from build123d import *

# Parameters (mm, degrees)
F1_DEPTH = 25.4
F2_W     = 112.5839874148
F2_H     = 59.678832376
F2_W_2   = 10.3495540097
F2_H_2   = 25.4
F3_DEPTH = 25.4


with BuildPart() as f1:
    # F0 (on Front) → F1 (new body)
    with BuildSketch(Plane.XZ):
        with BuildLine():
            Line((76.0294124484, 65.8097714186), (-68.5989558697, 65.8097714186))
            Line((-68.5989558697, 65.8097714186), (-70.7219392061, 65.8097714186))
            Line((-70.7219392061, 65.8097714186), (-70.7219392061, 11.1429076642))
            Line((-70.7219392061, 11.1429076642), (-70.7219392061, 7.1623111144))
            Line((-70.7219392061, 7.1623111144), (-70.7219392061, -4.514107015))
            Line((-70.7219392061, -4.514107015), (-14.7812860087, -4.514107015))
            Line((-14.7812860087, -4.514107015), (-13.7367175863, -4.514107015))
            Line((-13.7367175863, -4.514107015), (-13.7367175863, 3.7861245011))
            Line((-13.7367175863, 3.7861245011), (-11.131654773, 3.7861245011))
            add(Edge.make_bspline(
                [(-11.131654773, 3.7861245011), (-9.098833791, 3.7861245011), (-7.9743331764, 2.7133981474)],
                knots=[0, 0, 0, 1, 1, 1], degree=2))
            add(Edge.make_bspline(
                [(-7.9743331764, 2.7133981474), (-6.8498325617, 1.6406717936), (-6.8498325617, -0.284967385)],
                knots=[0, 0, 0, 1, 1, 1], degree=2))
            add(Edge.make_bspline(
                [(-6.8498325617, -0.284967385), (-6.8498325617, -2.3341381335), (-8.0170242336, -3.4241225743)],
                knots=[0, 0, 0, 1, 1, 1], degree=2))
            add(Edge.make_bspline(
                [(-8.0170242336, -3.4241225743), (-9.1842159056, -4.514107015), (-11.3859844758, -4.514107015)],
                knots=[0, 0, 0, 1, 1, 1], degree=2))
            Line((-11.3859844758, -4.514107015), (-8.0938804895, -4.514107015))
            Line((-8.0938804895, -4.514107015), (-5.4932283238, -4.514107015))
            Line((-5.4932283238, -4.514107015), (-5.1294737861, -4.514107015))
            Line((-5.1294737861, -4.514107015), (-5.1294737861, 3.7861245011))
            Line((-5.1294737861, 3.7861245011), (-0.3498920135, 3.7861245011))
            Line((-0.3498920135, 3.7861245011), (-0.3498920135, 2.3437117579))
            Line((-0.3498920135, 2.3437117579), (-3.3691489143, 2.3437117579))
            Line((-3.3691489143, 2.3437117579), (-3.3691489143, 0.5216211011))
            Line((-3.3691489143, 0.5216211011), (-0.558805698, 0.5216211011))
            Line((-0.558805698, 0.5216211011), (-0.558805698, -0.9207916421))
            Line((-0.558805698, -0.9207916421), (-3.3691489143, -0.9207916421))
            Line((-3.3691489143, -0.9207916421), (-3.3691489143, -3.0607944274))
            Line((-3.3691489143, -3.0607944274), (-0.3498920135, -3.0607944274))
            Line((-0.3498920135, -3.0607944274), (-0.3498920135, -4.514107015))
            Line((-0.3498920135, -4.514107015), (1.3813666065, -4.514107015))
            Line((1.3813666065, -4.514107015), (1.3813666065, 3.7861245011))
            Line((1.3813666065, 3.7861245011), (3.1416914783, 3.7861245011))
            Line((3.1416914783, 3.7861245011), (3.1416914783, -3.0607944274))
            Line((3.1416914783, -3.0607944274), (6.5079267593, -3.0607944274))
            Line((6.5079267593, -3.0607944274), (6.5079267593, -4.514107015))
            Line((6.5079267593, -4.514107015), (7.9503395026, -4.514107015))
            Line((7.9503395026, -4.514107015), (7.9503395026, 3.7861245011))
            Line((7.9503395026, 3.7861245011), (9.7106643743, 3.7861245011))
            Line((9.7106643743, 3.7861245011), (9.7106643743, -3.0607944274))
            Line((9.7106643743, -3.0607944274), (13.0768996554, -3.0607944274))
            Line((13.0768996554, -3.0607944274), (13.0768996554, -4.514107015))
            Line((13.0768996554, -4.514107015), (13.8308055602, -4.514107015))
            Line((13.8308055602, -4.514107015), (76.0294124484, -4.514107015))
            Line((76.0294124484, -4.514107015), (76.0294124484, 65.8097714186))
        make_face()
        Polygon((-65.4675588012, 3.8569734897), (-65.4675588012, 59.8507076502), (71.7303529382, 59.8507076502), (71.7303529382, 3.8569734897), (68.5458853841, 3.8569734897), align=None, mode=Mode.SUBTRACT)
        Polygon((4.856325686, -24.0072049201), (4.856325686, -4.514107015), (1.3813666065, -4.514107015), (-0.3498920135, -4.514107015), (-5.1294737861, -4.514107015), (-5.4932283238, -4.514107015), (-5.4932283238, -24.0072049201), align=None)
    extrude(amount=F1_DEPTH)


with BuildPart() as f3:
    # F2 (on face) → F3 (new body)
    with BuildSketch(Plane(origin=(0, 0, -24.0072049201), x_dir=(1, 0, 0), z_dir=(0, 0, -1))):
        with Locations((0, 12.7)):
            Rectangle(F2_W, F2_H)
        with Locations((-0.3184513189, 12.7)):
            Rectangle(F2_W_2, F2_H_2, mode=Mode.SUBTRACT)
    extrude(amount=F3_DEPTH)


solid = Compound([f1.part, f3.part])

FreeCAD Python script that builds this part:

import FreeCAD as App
import Part
import Sketcher
Q = App.Units.Quantity

doc = App.newDocument("Part")
params = doc.addObject("Spreadsheet::Sheet", "Params")
for row, (alias, value) in enumerate([
    ("pad1_length", "1 in"),
    ("sketch2_height", "1 in"),
    ("pad2_length", "1 in"),
], start=1):
    params.set(f"A{row}", alias)
    params.set(f"B{row}", "=" + value)
    params.setAlias(f"B{row}", alias)

body = doc.addObject("PartDesign::Body", "Body")

# Sketch on XZ plane
sketch1 = doc.addObject("Sketcher::SketchObject", "Sketch")
body.addObject(sketch1)
sketch1.AttachmentSupport = (doc.XZ_Plane, [""])
sketch1.MapMode = "FlatFace"
sketch1.addGeometry([
    Part.LineSegment(App.Vector(76.029412, 65.809771, 0), App.Vector(-70.721939, 65.809771, 0)),  # 0
    Part.LineSegment(App.Vector(-70.721939, 65.809771, 0), App.Vector(-70.721939, -4.514107, 0)),  # 1
    Part.LineSegment(App.Vector(-70.721939, -4.514107, 0), App.Vector(-13.736718, -4.514107, 0)),  # 2
    Part.LineSegment(App.Vector(-13.736718, -4.514107, 0), App.Vector(-13.736718, 3.786125, 0)),  # 3
    Part.LineSegment(App.Vector(-13.736718, 3.786125, 0), App.Vector(-11.131655, 3.786125, 0)),  # 4
    Part.BSplineCurve([App.Vector(-11.131655, 3.786125, 0), App.Vector(-9.098834, 3.786125, 0), App.Vector(-7.974333, 2.713398, 0)], [3, 3], [0, 1], False, 2, [1, 1, 1], False),  # 5
    Part.BSplineCurve([App.Vector(-7.974333, 2.713398, 0), App.Vector(-6.849833, 1.640672, 0), App.Vector(-6.849833, -2.334138, 0), App.Vector(-8.017024, -3.424123, 0)], [3, 1, 3], [0, 1, 2.064150943], False, 2, [1, 1, 1, 1], False),  # 6
    Part.BSplineCurve([App.Vector(-8.017024, -3.424123, 0), App.Vector(-9.184216, -4.514107, 0), App.Vector(-11.385984, -4.514107, 0)], [3, 3], [0, 1], False, 2, [1, 1, 1], False),  # 7
    Part.LineSegment(App.Vector(-11.385984, -4.514107, 0), App.Vector(-5.493228, -4.514107, 0)),  # 8
    Part.LineSegment(App.Vector(-5.493228, -4.514107, 0), App.Vector(-5.493228, -24.007205, 0)),  # 9
    Part.LineSegment(App.Vector(-5.493228, -24.007205, 0), App.Vector(4.856326, -24.007205, 0)),  # 10
    Part.LineSegment(App.Vector(4.856326, -24.007205, 0), App.Vector(4.856326, -4.514107, 0)),  # 11
    Part.LineSegment(App.Vector(4.856326, -4.514107, 0), App.Vector(1.381367, -4.514107, 0)),  # 12
    Part.LineSegment(App.Vector(1.381367, -4.514107, 0), App.Vector(1.381367, 3.786125, 0)),  # 13
    Part.LineSegment(App.Vector(1.381367, 3.786125, 0), App.Vector(3.141691, 3.786125, 0)),  # 14
    Part.LineSegment(App.Vector(3.141691, 3.786125, 0), App.Vector(3.141691, -3.060794, 0)),  # 15
    Part.LineSegment(App.Vector(3.141691, -3.060794, 0), App.Vector(6.507927, -3.060794, 0)),  # 16
    Part.LineSegment(App.Vector(6.507927, -3.060794, 0), App.Vector(6.507927, -4.514107, 0)),  # 17
    Part.LineSegment(App.Vector(6.507927, -4.514107, 0), App.Vector(7.95034, -4.514107, 0)),  # 18
    Part.LineSegment(App.Vector(7.95034, -4.514107, 0), App.Vector(7.95034, 3.786125, 0)),  # 19
    Part.LineSegment(App.Vector(7.95034, 3.786125, 0), App.Vector(9.710664, 3.786125, 0)),  # 20
    Part.LineSegment(App.Vector(9.710664, 3.786125, 0), App.Vector(9.710664, -3.060794, 0)),  # 21
    Part.LineSegment(App.Vector(9.710664, -3.060794, 0), App.Vector(13.0769, -3.060794, 0)),  # 22
    Part.LineSegment(App.Vector(13.0769, -3.060794, 0), App.Vector(13.0769, -4.514107, 0)),  # 23
    Part.LineSegment(App.Vector(13.0769, -4.514107, 0), App.Vector(76.029412, -4.514107, 0)),  # 24
    Part.LineSegment(App.Vector(76.029412, -4.514107, 0), App.Vector(76.029412, 65.809771, 0)),  # 25
    Part.LineSegment(App.Vector(-5.129474, -4.514107, 0), App.Vector(-5.129474, 3.786125, 0)),  # 26
    Part.LineSegment(App.Vector(-5.129474, 3.786125, 0), App.Vector(-0.349892, 3.786125, 0)),  # 27
    Part.LineSegment(App.Vector(-0.349892, 3.786125, 0), App.Vector(-0.349892, 2.343712, 0)),  # 28
    Part.LineSegment(App.Vector(-0.349892, 2.343712, 0), App.Vector(-3.369149, 2.343712, 0)),  # 29
    Part.LineSegment(App.Vector(-3.369149, 2.343712, 0), App.Vector(-3.369149, 0.521621, 0)),  # 30
    Part.LineSegment(App.Vector(-3.369149, 0.521621, 0), App.Vector(-0.558806, 0.521621, 0)),  # 31
    Part.LineSegment(App.Vector(-0.558806, 0.521621, 0), App.Vector(-0.558806, -0.920792, 0)),  # 32
    Part.LineSegment(App.Vector(-0.558806, -0.920792, 0), App.Vector(-3.369149, -0.920792, 0)),  # 33
    Part.LineSegment(App.Vector(-3.369149, -0.920792, 0), App.Vector(-3.369149, -3.060794, 0)),  # 34
    Part.LineSegment(App.Vector(-3.369149, -3.060794, 0), App.Vector(-0.349892, -3.060794, 0)),  # 35
    Part.LineSegment(App.Vector(-0.349892, -3.060794, 0), App.Vector(-0.349892, -4.514107, 0)),  # 36
    Part.LineSegment(App.Vector(-0.349892, -4.514107, 0), App.Vector(-5.129474, -4.514107, 0)),  # 37
    Part.LineSegment(App.Vector(71.730353, 3.856973, 0), App.Vector(-65.467559, 3.856973, 0)),  # 38
    Part.LineSegment(App.Vector(-65.467559, 3.856973, 0), App.Vector(-65.467559, 59.850708, 0)),  # 39
    Part.LineSegment(App.Vector(-65.467559, 59.850708, 0), App.Vector(71.730353, 59.850708, 0)),  # 40
    Part.LineSegment(App.Vector(71.730353, 59.850708, 0), App.Vector(71.730353, 3.856973, 0)),  # 41
], False)
sketch1.addConstraint([
    Sketcher.Constraint("Block", 5),
    Sketcher.Constraint("Block", 6),
    Sketcher.Constraint("Block", 7),
    Sketcher.Constraint("Coincident", 0, 2, 1, 1),
    Sketcher.Constraint("Coincident", 1, 2, 2, 1),
    Sketcher.Constraint("Coincident", 2, 2, 3, 1),
    Sketcher.Constraint("Coincident", 3, 2, 4, 1),
    Sketcher.Constraint("Coincident", 4, 2, 5, 1),
    Sketcher.Constraint("Coincident", 7, 2, 8, 1),
    Sketcher.Constraint("Coincident", 8, 2, 9, 1),
    Sketcher.Constraint("Coincident", 9, 2, 10, 1),
    Sketcher.Constraint("Coincident", 10, 2, 11, 1),
    Sketcher.Constraint("Coincident", 11, 2, 12, 1),
    Sketcher.Constraint("Coincident", 12, 2, 13, 1),
    Sketcher.Constraint("Coincident", 13, 2, 14, 1),
    Sketcher.Constraint("Coincident", 14, 2, 15, 1),
    Sketcher.Constraint("Coincident", 15, 2, 16, 1),
    Sketcher.Constraint("Coincident", 16, 2, 17, 1),
    Sketcher.Constraint("Coincident", 17, 2, 18, 1),
    Sketcher.Constraint("Coincident", 18, 2, 19, 1),
    Sketcher.Constraint("Coincident", 19, 2, 20, 1),
    Sketcher.Constraint("Coincident", 20, 2, 21, 1),
    Sketcher.Constraint("Coincident", 21, 2, 22, 1),
    Sketcher.Constraint("Coincident", 22, 2, 23, 1),
    Sketcher.Constraint("Coincident", 23, 2, 24, 1),
    Sketcher.Constraint("Coincident", 24, 2, 25, 1),
    Sketcher.Constraint("Coincident", 25, 2, 0, 1),
    Sketcher.Constraint("Coincident", 26, 2, 27, 1),
    Sketcher.Constraint("Coincident", 27, 2, 28, 1),
    Sketcher.Constraint("Coincident", 28, 2, 29, 1),
    Sketcher.Constraint("Coincident", 29, 2, 30, 1),
    Sketcher.Constraint("Coincident", 30, 2, 31, 1),
    Sketcher.Constraint("Coincident", 31, 2, 32, 1),
    Sketcher.Constraint("Coincident", 32, 2, 33, 1),
    Sketcher.Constraint("Coincident", 33, 2, 34, 1),
    Sketcher.Constraint("Coincident", 34, 2, 35, 1),
    Sketcher.Constraint("Coincident", 35, 2, 36, 1),
    Sketcher.Constraint("Coincident", 36, 2, 37, 1),
    Sketcher.Constraint("Coincident", 37, 2, 26, 1),
    Sketcher.Constraint("Coincident", 38, 2, 39, 1),
    Sketcher.Constraint("Coincident", 39, 2, 40, 1),
    Sketcher.Constraint("Coincident", 40, 2, 41, 1),
    Sketcher.Constraint("Coincident", 41, 2, 38, 1),
    Sketcher.Constraint("Horizontal", 0),
    Sketcher.Constraint("Vertical", 1),
    Sketcher.Constraint("Horizontal", 2),
    Sketcher.Constraint("Vertical", 3),
    Sketcher.Constraint("Horizontal", 4),
    Sketcher.Constraint("Horizontal", 8),
    Sketcher.Constraint("Vertical", 9),
    Sketcher.Constraint("Horizontal", 10),
    Sketcher.Constraint("Vertical", 11),
    Sketcher.Constraint("Horizontal", 12),
    Sketcher.Constraint("Vertical", 13),
    Sketcher.Constraint("Horizontal", 14),
    Sketcher.Constraint("Vertical", 15),
    Sketcher.Constraint("Horizontal", 16),
    Sketcher.Constraint("Vertical", 17),
    Sketcher.Constraint("Horizontal", 18),
    Sketcher.Constraint("Vertical", 19),
    Sketcher.Constraint("Horizontal", 20),
    Sketcher.Constraint("Vertical", 21),
    Sketcher.Constraint("Horizontal", 22),
    Sketcher.Constraint("Vertical", 23),
    Sketcher.Constraint("Horizontal", 24),
    Sketcher.Constraint("Vertical", 25),
    Sketcher.Constraint("Vertical", 26),
    Sketcher.Constraint("Horizontal", 27),
    Sketcher.Constraint("Vertical", 28),
    Sketcher.Constraint("Horizontal", 29),
    Sketcher.Constraint("Vertical", 30),
    Sketcher.Constraint("Horizontal", 31),
    Sketcher.Constraint("Vertical", 32),
    Sketcher.Constraint("Horizontal", 33),
    Sketcher.Constraint("Vertical", 34),
    Sketcher.Constraint("Horizontal", 35),
    Sketcher.Constraint("Vertical", 36),
    Sketcher.Constraint("Horizontal", 37),
    Sketcher.Constraint("Horizontal", 38),
    Sketcher.Constraint("Vertical", 39),
    Sketcher.Constraint("Horizontal", 40),
    Sketcher.Constraint("Vertical", 41),
    Sketcher.Constraint("Horizontal", 2, 2, 8, 2),
    Sketcher.Constraint("Horizontal", 8, 2, 11, 2),
    Sketcher.Constraint("Horizontal", 4, 2, 13, 2),
    Sketcher.Constraint("Horizontal", 12, 2, 17, 2),
    Sketcher.Constraint("Horizontal", 14, 2, 19, 2),
    Sketcher.Constraint("Horizontal", 16, 2, 21, 2),
    Sketcher.Constraint("Horizontal", 18, 2, 23, 2),
    Sketcher.Constraint("Horizontal", 20, 2, 26, 2),
    Sketcher.Constraint("Horizontal", 22, 2, 34, 2),
    Sketcher.Constraint("Horizontal", 24, 2, 36, 2),
    Sketcher.Constraint("Vertical", 30, 2, 33, 2),
    Sketcher.Constraint("Vertical", 28, 2, 35, 2),
    Sketcher.Constraint("Equal", 14, 20),
    Sketcher.Constraint("Equal", 16, 22),
    Sketcher.Constraint("Equal", 18, 28),
    Sketcher.Constraint("Equal", 28, 32),
    Sketcher.Constraint("DistanceX", 2, 2, 12, 2, Q("0.5952002 in")),
    Sketcher.Constraint("DistanceX", 0, 2, 0, 1, 146.751352),
    Sketcher.Constraint("DistanceX", 2, 1, 2, 2, 56.985222),
    Sketcher.Constraint("DistanceX", 12, 2, 12, 1, 3.474959),
    Sketcher.Constraint("DistanceX", 27, 1, 27, 2, 4.779582),
    Sketcher.Constraint("DistanceX", 38, 2, 38, 1, 137.197912),
    Sketcher.Constraint("DistanceY", 1, 2, 1, 1, 70.323878),
    Sketcher.Constraint("DistanceY", 15, 2, 15, 1, 6.846919),
    Sketcher.Constraint("DistanceY", 30, 2, 30, 1, 1.822091),
    Sketcher.Constraint("DistanceX", -1, 1, 22, 2, 13.0769),
    Sketcher.Constraint("DistanceX", 11, 2, 16, 2, 1.651601),
    Sketcher.Constraint("DistanceX", 4, 1, 4, 2, 2.605063),
    Sketcher.Constraint("DistanceX", 8, 1, 8, 2, 5.892756),
    Sketcher.Constraint("DistanceX", 14, 1, 14, 2, 1.760325),
    Sketcher.Constraint("DistanceX", 29, 2, 29, 1, 3.019257),
    Sketcher.Constraint("DistanceX", 31, 1, 31, 2, 2.810343),
    Sketcher.Constraint("DistanceY", 9, 2, 9, 1, 19.493098),
    Sketcher.Constraint("DistanceY", 39, 1, 39, 2, 55.993734),
    Sketcher.Constraint("DistanceX", 29, 2, -1, 1, 3.369149),
    Sketcher.Constraint("DistanceX", 38, 2, -1, 1, 65.467559),
    Sketcher.Constraint("DistanceY", 1, 2, 38, 2, 8.371081),
])
pad1 = doc.addObject("PartDesign::Pad", "Pad")
body.addObject(pad1)
pad1.Profile = sketch1
pad1.setExpression("Length", "Params.pad1_length")
body2 = doc.addObject("PartDesign::Body", "Body001")

# Sketch on XY plane
sketch2 = doc.addObject("Sketcher::SketchObject", "Sketch001")
body2.addObject(sketch2)
sketch2.AttachmentSupport = (doc.getObject("XY_Plane001"), [""])
sketch2.MapMode = "FlatFace"
sketch2.AttachmentOffset = App.Placement(App.Vector(0, 0, -24.007205), App.Rotation())
sketch2.addGeometry([
    Part.LineSegment(App.Vector(-56, -43, 0), App.Vector(-56, 17, 0)),  # 0
    Part.LineSegment(App.Vector(-56, 17, 0), App.Vector(56, 17, 0)),  # 1
    Part.LineSegment(App.Vector(56, 17, 0), App.Vector(56, -43, 0)),  # 2
    Part.LineSegment(App.Vector(56, -43, 0), App.Vector(-56, -43, 0)),  # 3
    Part.LineSegment(App.Vector(5, 0, 0), App.Vector(-5, 0, 0)),  # 4
    Part.LineSegment(App.Vector(-5, 0, 0), App.Vector(-5, -25, 0)),  # 5
    Part.LineSegment(App.Vector(-5, -25, 0), App.Vector(5, -25, 0)),  # 6
    Part.LineSegment(App.Vector(5, -25, 0), App.Vector(5, 0, 0)),  # 7
], False)
sketch2.addConstraint([
    Sketcher.Constraint("Coincident", 0, 2, 1, 1),
    Sketcher.Constraint("Coincident", 1, 2, 2, 1),
    Sketcher.Constraint("Coincident", 2, 2, 3, 1),
    Sketcher.Constraint("Coincident", 3, 2, 0, 1),
    Sketcher.Constraint("Coincident", 4, 2, 5, 1),
    Sketcher.Constraint("Coincident", 5, 2, 6, 1),
    Sketcher.Constraint("Coincident", 6, 2, 7, 1),
    Sketcher.Constraint("Coincident", 7, 2, 4, 1),
    Sketcher.Constraint("Vertical", 0),
    Sketcher.Constraint("Horizontal", 1),
    Sketcher.Constraint("Vertical", 2),
    Sketcher.Constraint("Horizontal", 3),
    Sketcher.Constraint("Horizontal", 4),
    Sketcher.Constraint("Vertical", 5),
    Sketcher.Constraint("Horizontal", 6),
    Sketcher.Constraint("Vertical", 7),
    Sketcher.Constraint("PointOnObject", 4, 2, -1),
    Sketcher.Constraint("DistanceY", 5, 2, 5, 1, Q("1 in")),
    Sketcher.Constraint("DistanceX", 1, 1, 1, 2, 112.583987),
    Sketcher.Constraint("DistanceX", 4, 2, 4, 1, 10.349554),
    Sketcher.Constraint("DistanceY", 0, 1, 0, 2, 59.678832),
    Sketcher.Constraint("DistanceX", 4, 2, -1, 1, 5.493228),
    Sketcher.Constraint("DistanceX", 6, 2, 2, 2, 51.435668),
    Sketcher.Constraint("DistanceY", -1, 1, 0, 2, 17.139416),
])
sketch2.setExpression("Constraints[17]", "Params.sketch2_height")
pad2 = doc.addObject("PartDesign::Pad", "Pad001")
body2.addObject(pad2)
pad2.Profile = sketch2
pad2.setExpression("Length", "Params.pad2_length")
pad2.Reversed = True

doc.recompute()
